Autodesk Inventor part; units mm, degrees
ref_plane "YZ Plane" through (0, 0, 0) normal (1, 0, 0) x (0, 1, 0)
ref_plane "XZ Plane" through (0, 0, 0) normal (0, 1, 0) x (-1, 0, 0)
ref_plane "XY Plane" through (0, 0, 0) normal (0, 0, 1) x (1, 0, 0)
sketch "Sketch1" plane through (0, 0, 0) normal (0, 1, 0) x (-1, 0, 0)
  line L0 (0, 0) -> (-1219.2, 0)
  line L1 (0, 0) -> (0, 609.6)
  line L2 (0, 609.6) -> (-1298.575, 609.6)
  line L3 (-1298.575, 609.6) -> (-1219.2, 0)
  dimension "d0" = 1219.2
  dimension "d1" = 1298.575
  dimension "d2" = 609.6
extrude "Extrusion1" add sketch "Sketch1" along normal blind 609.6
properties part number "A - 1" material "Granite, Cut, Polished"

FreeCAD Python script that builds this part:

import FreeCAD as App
import Part
import Sketcher
Q = App.Units.Quantity

doc = App.newDocument("Part")
body = doc.addObject("PartDesign::Body", "Body")

# Sketch on XZ plane
sketch1 = doc.addObject("Sketcher::SketchObject", "Sketch")
body.addObject(sketch1)
sketch1.AttachmentSupport = (doc.XZ_Plane, [""])
sketch1.MapMode = "FlatFace"
sketch1.addGeometry([
    Part.LineSegment(App.Vector(1219, 0, 0), App.Vector(0, 0, 0)),
    Part.LineSegment(App.Vector(0, 0, 0), App.Vector(0, 610, 0)),
    Part.LineSegment(App.Vector(0, 610, 0), App.Vector(1299, 610, 0)),
    Part.LineSegment(App.Vector(1299, 610, 0), App.Vector(1219, 0, 0)),
], False)
sketch1.addConstraint([
    Sketcher.Constraint("Coincident", 0, 2, 1, 1),
    Sketcher.Constraint("Coincident", 1, 2, 2, 1),
    Sketcher.Constraint("Coincident", 2, 2, 3, 1),
    Sketcher.Constraint("Coincident", 3, 2, 0, 1),
    Sketcher.Constraint("Horizontal", 0),
    Sketcher.Constraint("Vertical", 1),
    Sketcher.Constraint("Horizontal", 2),
    Sketcher.Constraint("Coincident", 0, 2, -1, 1),
    Sketcher.Constraint("DistanceX", 0, 2, 0, 1, Q("48 in")),
    Sketcher.Constraint("DistanceY", 1, 1, 1, 2, Q("24 in")),
    Sketcher.Constraint("DistanceX", 2, 1, 2, 2, Q("51.125 in")),
])
pad1 = doc.addObject("PartDesign::Pad", "Pad")
body.addObject(pad1)
pad1.Profile = sketch1
pad1.Length = Q("24 in")
pad1.Reversed = True

doc.recompute()
